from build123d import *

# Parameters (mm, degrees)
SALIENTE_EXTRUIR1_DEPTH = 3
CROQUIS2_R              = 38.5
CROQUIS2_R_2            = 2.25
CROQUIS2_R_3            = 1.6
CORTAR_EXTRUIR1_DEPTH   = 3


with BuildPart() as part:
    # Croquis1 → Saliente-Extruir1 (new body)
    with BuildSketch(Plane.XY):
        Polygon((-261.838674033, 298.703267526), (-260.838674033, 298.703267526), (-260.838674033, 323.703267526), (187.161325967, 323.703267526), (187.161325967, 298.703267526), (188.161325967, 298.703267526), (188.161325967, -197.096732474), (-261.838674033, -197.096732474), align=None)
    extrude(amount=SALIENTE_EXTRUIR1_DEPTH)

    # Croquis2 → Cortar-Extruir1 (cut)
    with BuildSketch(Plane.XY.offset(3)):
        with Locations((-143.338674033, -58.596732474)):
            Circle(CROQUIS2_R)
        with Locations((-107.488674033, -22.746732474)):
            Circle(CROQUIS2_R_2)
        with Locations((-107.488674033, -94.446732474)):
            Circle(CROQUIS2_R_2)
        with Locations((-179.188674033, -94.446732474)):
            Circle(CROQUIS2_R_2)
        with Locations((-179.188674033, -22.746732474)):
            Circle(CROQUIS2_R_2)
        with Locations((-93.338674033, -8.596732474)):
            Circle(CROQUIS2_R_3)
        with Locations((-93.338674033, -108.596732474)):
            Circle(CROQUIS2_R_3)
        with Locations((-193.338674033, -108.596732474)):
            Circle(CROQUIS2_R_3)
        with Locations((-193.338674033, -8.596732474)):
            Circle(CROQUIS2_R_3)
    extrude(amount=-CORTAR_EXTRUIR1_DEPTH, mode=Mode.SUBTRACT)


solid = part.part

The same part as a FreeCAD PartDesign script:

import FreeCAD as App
import Part
import Sketcher

doc = App.newDocument("Part")
params = doc.addObject("Spreadsheet::Sheet", "Params")
for row, (alias, value) in enumerate([
    ("sketch1_width", "1 mm"),
    ("sketch1_width2", "450 mm"),
    ("sketch1_height", "25 mm"),
    ("sketch1_height2", "495.8 mm"),
    ("pad1_length", "3 mm"),
    ("sketch2_diameter", "77 mm"),
    ("sketch2_diameter2", "4.5 mm"),
    ("sketch2_diameter3", "3.2 mm"),
    ("pocket1_length", "3 mm"),
], start=1):
    params.set(f"A{row}", alias)
    params.set(f"B{row}", "=" + value)
    params.setAlias(f"B{row}", alias)

body = doc.addObject("PartDesign::Body", "Body")

# Sketch on XY plane
sketch1 = body.newObject("Sketcher::SketchObject", "Sketch")
sketch1.AttachmentSupport = (doc.getObject("XY_Plane"), [""])
sketch1.MapMode = "FlatFace"
sketch1.addGeometry([
    Part.LineSegment(App.Vector(-260.8, 298.7, 0), App.Vector(-261.8, 298.7, 0)),  # 0
    Part.LineSegment(App.Vector(-261.8, 298.7, 0), App.Vector(-261.8, -197.1, 0)),  # 1
    Part.LineSegment(App.Vector(-261.8, -197.1, 0), App.Vector(188.2, -197.1, 0)),  # 2
    Part.LineSegment(App.Vector(188.2, -197.1, 0), App.Vector(188.2, 298.7, 0)),  # 3
    Part.LineSegment(App.Vector(188.2, 298.7, 0), App.Vector(187.2, 298.7, 0)),  # 4
    Part.LineSegment(App.Vector(187.2, 298.7, 0), App.Vector(187.2, 323.7, 0)),  # 5
    Part.LineSegment(App.Vector(187.2, 323.7, 0), App.Vector(-260.8, 323.7, 0)),  # 6
    Part.LineSegment(App.Vector(-260.8, 323.7, 0), App.Vector(-260.8, 298.7, 0)),  # 7
], False)
sketch1.addConstraint([
    Sketcher.Constraint("Coincident", 0, 2, 1, 1),
    Sketcher.Constraint("Coincident", 1, 2, 2, 1),
    Sketcher.Constraint("Coincident", 2, 2, 3, 1),
    Sketcher.Constraint("Coincident", 3, 2, 4, 1),
    Sketcher.Constraint("Coincident", 4, 2, 5, 1),
    Sketcher.Constraint("Coincident", 5, 2, 6, 1),
    Sketcher.Constraint("Coincident", 6, 2, 7, 1),
    Sketcher.Constraint("Coincident", 7, 2, 0, 1),
    Sketcher.Constraint("Horizontal", 0),
    Sketcher.Constraint("Vertical", 1),
    Sketcher.Constraint("Horizontal", 2),
    Sketcher.Constraint("Vertical", 3),
    Sketcher.Constraint("Horizontal", 4),
    Sketcher.Constraint("Vertical", 5),
    Sketcher.Constraint("Horizontal", 6),
    Sketcher.Constraint("Vertical", 7),
    Sketcher.Constraint("Horizontal", 0, 2, 3, 2),
    Sketcher.Constraint("Equal", 0, 4),
    Sketcher.Constraint("DistanceX", 0, 2, 0, 1, 1.0),
    Sketcher.Constraint("DistanceX", 2, 1, 2, 2, 450.0),
    Sketcher.Constraint("DistanceY", 5, 1, 5, 2, 25.0),
    Sketcher.Constraint("DistanceY", 1, 2, 1, 1, 495.8),
    Sketcher.Constraint("DistanceX", 0, 2, -1, 1, 261.838674),
    Sketcher.Constraint("DistanceY", -1, 1, 0, 2, 298.703268),
])
sketch1.setExpression("Constraints[18]", "Params.sketch1_width")
sketch1.setExpression("Constraints[19]", "Params.sketch1_width2")
sketch1.setExpression("Constraints[20]", "Params.sketch1_height")
sketch1.setExpression("Constraints[21]", "Params.sketch1_height2")
pad1 = body.newObject("PartDesign::Pad", "Pad")
pad1.Profile = sketch1
pad1.setExpression("Length", "Params.pad1_length")

# Sketch on XY plane
sketch2 = body.newObject("Sketcher::SketchObject", "Sketch001")
sketch2.AttachmentSupport = (doc.getObject("XY_Plane"), [""])
sketch2.MapMode = "FlatFace"
sketch2.AttachmentOffset = App.Placement(App.Vector(0, 0, 3), App.Rotation())
sketch2.addGeometry([
    Part.Circle(App.Vector(-143.3, -58.6, 0), App.Vector(0, 0, 1), 38.5),  # 0
    Part.Circle(App.Vector(-107.5, -22.7, 0), App.Vector(0, 0, 1), 2.2),  # 1
    Part.Circle(App.Vector(-107.5, -94.4, 0), App.Vector(0, 0, 1), 2.2),  # 2
    Part.Circle(App.Vector(-179.2, -94.4, 0), App.Vector(0, 0, 1), 2.2),  # 3
    Part.Circle(App.Vector(-179.2, -22.7, 0), App.Vector(0, 0, 1), 2.2),  # 4
    Part.Circle(App.Vector(-93.3, -8.6, 0), App.Vector(0, 0, 1), 1.6),  # 5
    Part.Circle(App.Vector(-93.3, -108.6, 0), App.Vector(0, 0, 1), 1.6),  # 6
    Part.Circle(App.Vector(-193.3, -108.6, 0), App.Vector(0, 0, 1), 1.6),  # 7
    Part.Circle(App.Vector(-193.3, -8.6, 0), App.Vector(0, 0, 1), 1.6),  # 8
], False)
sketch2.addConstraint([
    Sketcher.Constraint("Equal", 1, 2),
    Sketcher.Constraint("Equal", 2, 3),
    Sketcher.Constraint("Equal", 3, 4),
    Sketcher.Constraint("Equal", 5, 6),
    Sketcher.Constraint("Equal", 6, 7),
    Sketcher.Constraint("Equal", 7, 8),
    Sketcher.Constraint("Horizontal", 2, 3, 3, 3),
    Sketcher.Constraint("Horizontal", 1, 3, 4, 3),
    Sketcher.Constraint("Horizontal", 6, 3, 7, 3),
    Sketcher.Constraint("Horizontal", 5, 3, 8, 3),
    Sketcher.Constraint("Vertical", 1, 3, 2, 3),
    Sketcher.Constraint("Vertical", 3, 3, 4, 3),
    Sketcher.Constraint("Vertical", 5, 3, 6, 3),
    Sketcher.Constraint("Vertical", 7, 3, 8, 3),
    Sketcher.Constraint("Diameter", 0, 77.0),
    Sketcher.Constraint("Diameter", 1, 4.5),
    Sketcher.Constraint("Diameter", 5, 3.2),
    Sketcher.Constraint("DistanceX", 0, 3, 5, 3, 50.0),
    Sketcher.Constraint("DistanceY", 0, 3, 5, 3, 50.0),
    Sketcher.Constraint("DistanceY", 6, 3, 0, 3, 50.0),
    Sketcher.Constraint("DistanceX", 7, 3, 0, 3, 50.0),
    Sketcher.Constraint("DistanceY", 2, 3, 1, 3, 71.7),
    Sketcher.Constraint("DistanceX", 3, 3, 2, 3, 71.7),
    Sketcher.Constraint("DistanceX", 0, 3, 1, 3, 35.85),
    Sketcher.Constraint("DistanceY", 0, 3, 1, 3, 35.85),
    Sketcher.Constraint("DistanceX", 0, 3, -1, 1, 143.338674),
    Sketcher.Constraint("DistanceY", 0, 3, -1, 1, 58.596732),
])
sketch2.setExpression("Constraints[14]", "Params.sketch2_diameter")
sketch2.setExpression("Constraints[15]", "Params.sketch2_diameter2")
sketch2.setExpression("Constraints[16]", "Params.sketch2_diameter3")
pocket1 = body.newObject("PartDesign::Pocket", "Pocket")
pocket1.Profile = sketch2
pocket1.setExpression("Length", "Params.pocket1_length")

doc.recompute()
